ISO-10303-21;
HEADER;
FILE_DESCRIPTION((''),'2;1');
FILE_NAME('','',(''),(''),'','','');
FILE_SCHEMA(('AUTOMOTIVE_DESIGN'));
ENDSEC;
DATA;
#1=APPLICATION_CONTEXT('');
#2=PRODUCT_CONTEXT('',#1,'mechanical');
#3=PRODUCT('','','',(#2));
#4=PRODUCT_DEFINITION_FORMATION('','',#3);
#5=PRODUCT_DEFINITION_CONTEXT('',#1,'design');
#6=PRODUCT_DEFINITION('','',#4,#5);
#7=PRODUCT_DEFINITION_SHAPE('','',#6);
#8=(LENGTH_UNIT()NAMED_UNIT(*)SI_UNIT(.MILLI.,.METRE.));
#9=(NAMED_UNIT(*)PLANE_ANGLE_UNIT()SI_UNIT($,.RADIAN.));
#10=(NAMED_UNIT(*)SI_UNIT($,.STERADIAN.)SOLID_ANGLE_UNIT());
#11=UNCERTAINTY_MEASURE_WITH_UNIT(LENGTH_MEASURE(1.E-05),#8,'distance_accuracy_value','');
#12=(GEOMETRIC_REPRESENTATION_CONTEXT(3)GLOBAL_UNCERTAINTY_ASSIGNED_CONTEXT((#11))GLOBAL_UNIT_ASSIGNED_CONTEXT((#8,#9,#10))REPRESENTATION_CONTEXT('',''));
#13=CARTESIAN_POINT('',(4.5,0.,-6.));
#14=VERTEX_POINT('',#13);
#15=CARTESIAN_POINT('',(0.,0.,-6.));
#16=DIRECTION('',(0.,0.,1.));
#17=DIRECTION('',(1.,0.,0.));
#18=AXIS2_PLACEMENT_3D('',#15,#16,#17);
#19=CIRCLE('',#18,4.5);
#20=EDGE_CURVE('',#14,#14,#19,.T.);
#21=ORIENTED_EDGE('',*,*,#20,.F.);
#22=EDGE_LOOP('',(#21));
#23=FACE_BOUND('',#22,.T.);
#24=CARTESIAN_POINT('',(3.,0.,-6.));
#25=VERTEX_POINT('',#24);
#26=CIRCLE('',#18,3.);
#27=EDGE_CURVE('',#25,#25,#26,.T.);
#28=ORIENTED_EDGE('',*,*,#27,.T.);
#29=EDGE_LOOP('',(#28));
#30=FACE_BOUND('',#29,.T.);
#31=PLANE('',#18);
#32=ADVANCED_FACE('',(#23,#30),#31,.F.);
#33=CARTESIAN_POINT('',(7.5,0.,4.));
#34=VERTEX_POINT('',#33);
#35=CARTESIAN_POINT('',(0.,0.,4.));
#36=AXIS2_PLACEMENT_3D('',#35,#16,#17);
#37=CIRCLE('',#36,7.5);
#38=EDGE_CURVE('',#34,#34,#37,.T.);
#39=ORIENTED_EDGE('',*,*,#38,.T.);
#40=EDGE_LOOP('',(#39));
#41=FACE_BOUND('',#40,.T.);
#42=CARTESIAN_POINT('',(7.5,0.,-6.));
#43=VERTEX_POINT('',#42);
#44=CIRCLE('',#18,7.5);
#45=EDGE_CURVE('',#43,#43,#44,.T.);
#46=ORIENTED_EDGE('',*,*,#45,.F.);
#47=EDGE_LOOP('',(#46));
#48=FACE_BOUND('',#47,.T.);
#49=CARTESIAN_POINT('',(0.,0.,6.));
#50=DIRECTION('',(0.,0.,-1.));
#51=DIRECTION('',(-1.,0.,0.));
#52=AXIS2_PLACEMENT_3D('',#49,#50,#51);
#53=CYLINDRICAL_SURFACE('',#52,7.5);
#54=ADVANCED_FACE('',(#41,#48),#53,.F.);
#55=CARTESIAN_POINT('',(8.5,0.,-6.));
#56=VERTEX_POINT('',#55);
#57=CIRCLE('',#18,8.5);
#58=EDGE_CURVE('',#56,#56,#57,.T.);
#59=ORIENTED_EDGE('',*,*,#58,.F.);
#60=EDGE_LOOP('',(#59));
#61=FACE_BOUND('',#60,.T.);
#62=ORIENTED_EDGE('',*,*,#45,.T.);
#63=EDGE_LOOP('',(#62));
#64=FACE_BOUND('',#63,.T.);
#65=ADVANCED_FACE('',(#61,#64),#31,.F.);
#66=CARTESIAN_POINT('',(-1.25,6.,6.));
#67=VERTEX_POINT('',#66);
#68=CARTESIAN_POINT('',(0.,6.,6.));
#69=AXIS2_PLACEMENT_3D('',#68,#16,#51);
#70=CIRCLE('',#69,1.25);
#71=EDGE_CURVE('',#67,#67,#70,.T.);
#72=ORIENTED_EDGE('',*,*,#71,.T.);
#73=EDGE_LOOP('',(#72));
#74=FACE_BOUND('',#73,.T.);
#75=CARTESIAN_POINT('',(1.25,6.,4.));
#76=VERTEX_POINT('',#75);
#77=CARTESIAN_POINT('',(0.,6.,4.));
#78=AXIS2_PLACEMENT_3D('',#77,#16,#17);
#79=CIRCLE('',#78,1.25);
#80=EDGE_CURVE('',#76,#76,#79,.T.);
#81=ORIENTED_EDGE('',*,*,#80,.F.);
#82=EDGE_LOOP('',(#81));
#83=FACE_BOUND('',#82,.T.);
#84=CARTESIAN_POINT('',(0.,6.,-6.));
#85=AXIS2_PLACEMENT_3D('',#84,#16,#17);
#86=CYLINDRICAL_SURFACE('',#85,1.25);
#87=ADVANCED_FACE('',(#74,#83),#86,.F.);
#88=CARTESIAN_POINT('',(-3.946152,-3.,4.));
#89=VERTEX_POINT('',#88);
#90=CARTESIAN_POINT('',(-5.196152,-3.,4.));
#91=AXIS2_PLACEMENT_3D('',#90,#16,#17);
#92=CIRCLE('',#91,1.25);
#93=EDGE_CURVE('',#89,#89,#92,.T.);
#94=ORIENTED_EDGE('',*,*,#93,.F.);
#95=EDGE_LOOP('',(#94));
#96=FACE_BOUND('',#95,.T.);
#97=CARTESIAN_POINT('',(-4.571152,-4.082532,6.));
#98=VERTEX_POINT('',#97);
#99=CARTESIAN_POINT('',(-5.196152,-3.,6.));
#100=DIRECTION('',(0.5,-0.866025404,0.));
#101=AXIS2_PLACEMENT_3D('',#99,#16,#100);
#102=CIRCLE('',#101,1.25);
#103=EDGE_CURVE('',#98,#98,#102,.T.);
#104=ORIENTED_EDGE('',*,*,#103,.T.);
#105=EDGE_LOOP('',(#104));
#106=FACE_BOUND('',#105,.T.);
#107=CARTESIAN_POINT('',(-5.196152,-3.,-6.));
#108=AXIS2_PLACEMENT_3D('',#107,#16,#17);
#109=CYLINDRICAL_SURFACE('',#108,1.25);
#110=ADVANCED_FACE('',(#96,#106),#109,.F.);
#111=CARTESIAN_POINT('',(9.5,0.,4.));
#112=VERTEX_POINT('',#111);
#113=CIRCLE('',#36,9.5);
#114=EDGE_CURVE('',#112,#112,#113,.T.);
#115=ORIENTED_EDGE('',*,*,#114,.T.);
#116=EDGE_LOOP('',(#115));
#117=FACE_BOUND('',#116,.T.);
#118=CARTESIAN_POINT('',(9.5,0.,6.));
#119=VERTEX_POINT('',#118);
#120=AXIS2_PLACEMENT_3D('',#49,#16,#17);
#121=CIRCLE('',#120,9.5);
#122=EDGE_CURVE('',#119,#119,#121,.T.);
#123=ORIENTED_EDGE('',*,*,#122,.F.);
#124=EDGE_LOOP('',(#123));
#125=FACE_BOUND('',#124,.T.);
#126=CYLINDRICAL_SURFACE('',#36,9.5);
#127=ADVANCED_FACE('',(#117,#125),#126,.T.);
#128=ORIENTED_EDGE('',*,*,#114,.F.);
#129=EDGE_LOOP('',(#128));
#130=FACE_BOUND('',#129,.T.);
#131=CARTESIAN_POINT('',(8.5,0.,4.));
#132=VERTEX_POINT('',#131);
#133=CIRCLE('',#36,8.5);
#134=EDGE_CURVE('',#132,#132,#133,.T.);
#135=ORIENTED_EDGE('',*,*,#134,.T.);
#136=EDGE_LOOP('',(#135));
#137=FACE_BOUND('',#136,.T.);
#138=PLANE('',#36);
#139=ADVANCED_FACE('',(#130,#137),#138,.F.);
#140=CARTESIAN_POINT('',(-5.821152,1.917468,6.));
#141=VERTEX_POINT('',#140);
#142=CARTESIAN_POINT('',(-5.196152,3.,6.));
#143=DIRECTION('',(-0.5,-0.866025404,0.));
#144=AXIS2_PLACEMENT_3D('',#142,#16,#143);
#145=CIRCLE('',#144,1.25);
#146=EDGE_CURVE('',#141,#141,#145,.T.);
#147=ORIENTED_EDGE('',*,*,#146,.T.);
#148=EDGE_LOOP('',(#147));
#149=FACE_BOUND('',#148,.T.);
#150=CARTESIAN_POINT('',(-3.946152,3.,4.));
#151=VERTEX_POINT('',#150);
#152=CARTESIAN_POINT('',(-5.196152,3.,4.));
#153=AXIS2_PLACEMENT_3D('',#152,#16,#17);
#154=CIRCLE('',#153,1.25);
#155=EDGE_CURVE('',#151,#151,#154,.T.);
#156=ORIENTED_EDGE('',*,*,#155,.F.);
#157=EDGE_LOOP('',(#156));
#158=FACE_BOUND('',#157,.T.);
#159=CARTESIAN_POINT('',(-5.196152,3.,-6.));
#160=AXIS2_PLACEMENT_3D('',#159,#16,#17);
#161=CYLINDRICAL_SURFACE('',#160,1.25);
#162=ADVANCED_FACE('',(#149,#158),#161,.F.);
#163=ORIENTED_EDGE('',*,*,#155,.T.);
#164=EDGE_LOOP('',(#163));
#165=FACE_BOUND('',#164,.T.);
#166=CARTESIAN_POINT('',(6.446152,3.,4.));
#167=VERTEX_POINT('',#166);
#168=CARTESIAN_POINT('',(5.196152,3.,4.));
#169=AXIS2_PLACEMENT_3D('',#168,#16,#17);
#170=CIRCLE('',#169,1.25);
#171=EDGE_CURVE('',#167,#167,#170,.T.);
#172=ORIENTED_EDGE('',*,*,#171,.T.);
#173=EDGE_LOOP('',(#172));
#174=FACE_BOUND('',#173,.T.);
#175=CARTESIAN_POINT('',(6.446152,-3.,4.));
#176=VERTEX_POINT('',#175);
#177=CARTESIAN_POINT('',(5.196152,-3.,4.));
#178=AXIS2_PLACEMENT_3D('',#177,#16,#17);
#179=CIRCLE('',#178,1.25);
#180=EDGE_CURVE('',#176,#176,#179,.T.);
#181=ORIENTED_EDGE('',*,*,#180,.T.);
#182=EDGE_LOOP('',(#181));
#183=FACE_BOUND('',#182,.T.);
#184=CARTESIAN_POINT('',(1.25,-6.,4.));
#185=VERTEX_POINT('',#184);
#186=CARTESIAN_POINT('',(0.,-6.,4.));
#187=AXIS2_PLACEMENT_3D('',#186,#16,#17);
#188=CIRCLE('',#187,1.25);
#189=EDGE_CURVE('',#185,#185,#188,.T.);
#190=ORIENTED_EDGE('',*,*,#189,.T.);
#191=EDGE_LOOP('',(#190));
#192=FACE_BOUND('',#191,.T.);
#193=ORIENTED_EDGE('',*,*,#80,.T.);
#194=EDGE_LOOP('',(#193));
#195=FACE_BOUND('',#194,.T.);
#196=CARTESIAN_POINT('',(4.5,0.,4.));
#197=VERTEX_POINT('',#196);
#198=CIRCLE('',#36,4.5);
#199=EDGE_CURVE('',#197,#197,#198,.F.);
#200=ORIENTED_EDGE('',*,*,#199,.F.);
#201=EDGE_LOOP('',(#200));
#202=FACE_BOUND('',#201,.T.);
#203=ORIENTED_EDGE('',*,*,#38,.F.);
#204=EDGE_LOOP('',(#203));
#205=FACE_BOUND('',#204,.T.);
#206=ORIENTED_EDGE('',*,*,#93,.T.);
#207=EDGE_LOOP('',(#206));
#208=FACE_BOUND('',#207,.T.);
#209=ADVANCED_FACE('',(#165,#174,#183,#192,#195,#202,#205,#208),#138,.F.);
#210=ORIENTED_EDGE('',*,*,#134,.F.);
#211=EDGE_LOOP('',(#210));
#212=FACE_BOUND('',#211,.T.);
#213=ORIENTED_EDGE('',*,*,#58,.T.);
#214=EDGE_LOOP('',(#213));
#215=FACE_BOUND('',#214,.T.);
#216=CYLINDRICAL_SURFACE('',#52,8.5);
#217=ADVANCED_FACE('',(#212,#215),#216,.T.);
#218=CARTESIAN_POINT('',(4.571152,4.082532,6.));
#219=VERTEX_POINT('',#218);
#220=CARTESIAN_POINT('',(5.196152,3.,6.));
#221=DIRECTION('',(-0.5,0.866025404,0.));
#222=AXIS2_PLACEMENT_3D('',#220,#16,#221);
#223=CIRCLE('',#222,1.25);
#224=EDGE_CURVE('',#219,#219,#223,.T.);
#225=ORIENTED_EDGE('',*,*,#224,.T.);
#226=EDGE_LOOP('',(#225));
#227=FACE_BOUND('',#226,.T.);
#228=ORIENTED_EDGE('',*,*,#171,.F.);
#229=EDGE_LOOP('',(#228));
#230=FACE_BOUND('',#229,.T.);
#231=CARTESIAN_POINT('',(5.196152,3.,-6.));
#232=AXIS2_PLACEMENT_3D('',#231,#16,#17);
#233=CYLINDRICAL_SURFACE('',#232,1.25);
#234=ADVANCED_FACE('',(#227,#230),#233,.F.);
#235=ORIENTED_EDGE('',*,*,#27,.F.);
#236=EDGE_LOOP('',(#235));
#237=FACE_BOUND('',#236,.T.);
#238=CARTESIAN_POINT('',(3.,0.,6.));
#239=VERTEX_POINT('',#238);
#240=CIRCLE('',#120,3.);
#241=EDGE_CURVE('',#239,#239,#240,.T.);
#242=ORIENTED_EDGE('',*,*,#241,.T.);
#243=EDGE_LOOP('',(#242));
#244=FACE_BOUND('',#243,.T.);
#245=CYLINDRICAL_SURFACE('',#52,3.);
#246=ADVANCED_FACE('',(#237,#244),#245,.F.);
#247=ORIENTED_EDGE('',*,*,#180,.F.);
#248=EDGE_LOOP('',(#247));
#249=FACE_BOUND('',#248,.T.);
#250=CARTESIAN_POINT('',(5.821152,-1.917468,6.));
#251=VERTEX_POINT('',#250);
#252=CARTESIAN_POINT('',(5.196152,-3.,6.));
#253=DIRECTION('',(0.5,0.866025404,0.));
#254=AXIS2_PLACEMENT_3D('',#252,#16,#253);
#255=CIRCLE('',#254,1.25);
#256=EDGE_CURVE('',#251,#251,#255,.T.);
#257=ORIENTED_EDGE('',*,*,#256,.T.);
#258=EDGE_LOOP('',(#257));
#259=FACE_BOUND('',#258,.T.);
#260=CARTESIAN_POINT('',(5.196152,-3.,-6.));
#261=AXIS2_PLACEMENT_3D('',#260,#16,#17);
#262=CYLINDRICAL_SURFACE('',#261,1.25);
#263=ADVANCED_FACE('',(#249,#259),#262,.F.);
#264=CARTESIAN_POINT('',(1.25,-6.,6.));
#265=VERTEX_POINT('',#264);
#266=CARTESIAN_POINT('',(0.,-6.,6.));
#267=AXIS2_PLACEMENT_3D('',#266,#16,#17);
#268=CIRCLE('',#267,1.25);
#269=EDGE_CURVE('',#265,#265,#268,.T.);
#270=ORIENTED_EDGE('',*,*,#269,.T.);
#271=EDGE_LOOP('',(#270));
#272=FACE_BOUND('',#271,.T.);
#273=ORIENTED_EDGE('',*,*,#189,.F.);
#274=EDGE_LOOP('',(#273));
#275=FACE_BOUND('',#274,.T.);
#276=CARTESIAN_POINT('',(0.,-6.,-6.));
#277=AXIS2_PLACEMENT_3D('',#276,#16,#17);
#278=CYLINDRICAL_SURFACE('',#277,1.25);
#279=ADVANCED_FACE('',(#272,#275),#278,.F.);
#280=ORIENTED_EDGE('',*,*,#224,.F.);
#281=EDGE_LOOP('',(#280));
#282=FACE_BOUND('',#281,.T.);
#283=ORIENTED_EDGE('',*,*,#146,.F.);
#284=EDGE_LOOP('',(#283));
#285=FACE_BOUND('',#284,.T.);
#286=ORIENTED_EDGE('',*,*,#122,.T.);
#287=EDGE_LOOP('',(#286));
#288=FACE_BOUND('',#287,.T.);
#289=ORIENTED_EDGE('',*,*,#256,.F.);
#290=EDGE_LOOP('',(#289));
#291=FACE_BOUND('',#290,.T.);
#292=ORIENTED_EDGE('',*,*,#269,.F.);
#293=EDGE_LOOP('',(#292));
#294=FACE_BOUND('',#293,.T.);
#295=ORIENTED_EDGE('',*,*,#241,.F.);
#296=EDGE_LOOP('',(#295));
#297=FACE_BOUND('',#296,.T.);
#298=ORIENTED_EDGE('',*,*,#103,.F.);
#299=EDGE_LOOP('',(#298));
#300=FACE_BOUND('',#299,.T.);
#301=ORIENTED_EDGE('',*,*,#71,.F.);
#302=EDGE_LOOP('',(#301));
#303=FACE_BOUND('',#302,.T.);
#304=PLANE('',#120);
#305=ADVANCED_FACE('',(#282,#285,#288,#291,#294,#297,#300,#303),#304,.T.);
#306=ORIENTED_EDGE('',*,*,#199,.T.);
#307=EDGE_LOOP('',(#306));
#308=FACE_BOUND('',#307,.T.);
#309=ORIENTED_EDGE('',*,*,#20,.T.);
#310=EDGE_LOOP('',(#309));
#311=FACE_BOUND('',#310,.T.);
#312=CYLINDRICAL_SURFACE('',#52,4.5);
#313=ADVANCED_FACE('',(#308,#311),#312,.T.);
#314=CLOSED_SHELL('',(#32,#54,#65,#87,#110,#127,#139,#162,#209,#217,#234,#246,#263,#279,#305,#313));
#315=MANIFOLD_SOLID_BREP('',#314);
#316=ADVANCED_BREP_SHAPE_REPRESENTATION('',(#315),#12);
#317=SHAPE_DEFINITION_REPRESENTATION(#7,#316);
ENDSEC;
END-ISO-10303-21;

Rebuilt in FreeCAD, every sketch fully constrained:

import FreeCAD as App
import Part
import Sketcher

V = App.Vector
Q = App.Units.Quantity

doc = App.newDocument("Part")
body = doc.addObject("PartDesign::Body", "Body")

# Sketch on XY plane
sketch1 = body.newObject("Sketcher::SketchObject", "Sketch")
sketch1.AttachmentSupport = (doc.getObject("XY_Plane"), [""])
sketch1.MapMode = "FlatFace"
sketch1.addGeometry([
    Part.Circle(V(0, 0, 0), V(0, 0, 1), 8),
    Part.Circle(V(0, 0, 0), V(0, 0, 1), 8),
], False)
sketch1.addConstraint([
    Sketcher.Constraint("Coincident", 0, 3, -1, 1),
    Sketcher.Constraint("Coincident", 1, 3, -1, 1),
    Sketcher.Constraint("Diameter", 0, Q("17 mm")),
    Sketcher.Constraint("Diameter", 1, Q("15 mm")),
])
pad1 = body.newObject("PartDesign::Pad", "Pad")
pad1.Profile = sketch1
pad1.Length = 12
pad1.Midplane = True
body2 = doc.addObject("PartDesign::Body", "Body001")

# Sketch on XY plane
sketch2 = body2.newObject("Sketcher::SketchObject", "Sketch001")
sketch2.AttachmentSupport = (doc.getObject("XY_Plane001"), [""])
sketch2.MapMode = "FlatFace"
sketch2.addGeometry([
    Part.Circle(V(0, 0, 0), V(0, 0, 1), 4.5),
    Part.Circle(V(0, 0, 0), V(0, 0, 1), 3),
], False)
sketch2.addConstraint([
    Sketcher.Constraint("Coincident", 0, 3, -1, 1),
    Sketcher.Constraint("Coincident", 1, 3, -1, 1),
    Sketcher.Constraint("Diameter", 0, Q("9 mm")),
    Sketcher.Constraint("Diameter", 1, Q("6 mm")),
])
pad2 = body2.newObject("PartDesign::Pad", "Pad001")
pad2.Profile = sketch2
pad2.Length = 12
pad2.Midplane = True
body.AllowCompound = True
doc.recompute()

boolean = body.newObject("PartDesign::Boolean", "Boolean")
boolean.Type = "Fuse"
boolean.addObjects([body2])

# Sketch on XY plane
sketch3 = body.newObject("Sketcher::SketchObject", "Sketch002")
sketch3.AttachmentSupport = (doc.getObject("XY_Plane"), [""])
sketch3.MapMode = "FlatFace"
sketch3.AttachmentOffset = App.Placement(V(0, 0, 6), App.Rotation())
sketch3.addGeometry([
    Part.Circle(V(0, 0, 0), V(0, 0, 1), 9.5),  # 0
    Part.Circle(V(0, 0, 0), V(0, 0, 1), 8.5),  # 1
    Part.Circle(V(0, 0, 0), V(0, 0, 1), 7.5),  # 2
    Part.Circle(V(0, -6, 0), V(0, 0, 1), 1.2),  # 3
    Part.Circle(V(0, 0, 0), V(0, 0, 1), 4.5),  # 4
], False)
sketch3.addConstraint([
    Sketcher.Constraint("Coincident", 0, 3, -1, 1),
    Sketcher.Constraint("Coincident", 1, 3, -1, 1),
    Sketcher.Constraint("Coincident", 2, 3, -1, 1),
    Sketcher.Constraint("Coincident", 4, 3, -1, 1),
    Sketcher.Constraint("PointOnObject", 3, 3, -2),
    Sketcher.Constraint("Diameter", 0, Q("19 mm")),
    Sketcher.Constraint("Diameter", 1, Q("17 mm")),
    Sketcher.Constraint("Diameter", 2, Q("15 mm")),
    Sketcher.Constraint("Diameter", 4, Q("9 mm")),
    Sketcher.Constraint("Diameter", 3, Q("2.5 mm")),
    Sketcher.Constraint("DistanceY", 3, 3, -1, 1, Q("6 mm")),
])
pad3 = body.newObject("PartDesign::Pad", "Pad002")
pad3.Profile = sketch3
pad3.Length = 2
pad3.Reversed = True

# Sketch on XY plane
sketch4 = body.newObject("Sketcher::SketchObject", "Sketch003")
sketch4.AttachmentSupport = (doc.getObject("XY_Plane"), [""])
sketch4.MapMode = "FlatFace"
sketch4.addGeometry(Part.Circle(V(0, -6, 0), V(0, 0, 1), 1.2), False)
sketch4.addConstraint([
    Sketcher.Constraint("PointOnObject", 0, 3, -2),
    Sketcher.Constraint("Diameter", 0, Q("2.5 mm")),
    Sketcher.Constraint("DistanceY", 0, 3, -1, 1, Q("6 mm")),
])
pocket1 = body.newObject("PartDesign::Pocket", "Pocket")
pocket1.Profile = sketch4
pocket1.Length = 14
pocket1.Midplane = True
doc.recompute()

polarpattern = body.newObject("PartDesign::PolarPattern", "PolarPattern")
polarpattern.Originals = [pocket1]
polarpattern.Axis = (doc.getObject("Z_Axis"), [""])
polarpattern.Angle = 360
polarpattern.Occurrences = 6
body.Tip = polarpattern

doc.recompute()
